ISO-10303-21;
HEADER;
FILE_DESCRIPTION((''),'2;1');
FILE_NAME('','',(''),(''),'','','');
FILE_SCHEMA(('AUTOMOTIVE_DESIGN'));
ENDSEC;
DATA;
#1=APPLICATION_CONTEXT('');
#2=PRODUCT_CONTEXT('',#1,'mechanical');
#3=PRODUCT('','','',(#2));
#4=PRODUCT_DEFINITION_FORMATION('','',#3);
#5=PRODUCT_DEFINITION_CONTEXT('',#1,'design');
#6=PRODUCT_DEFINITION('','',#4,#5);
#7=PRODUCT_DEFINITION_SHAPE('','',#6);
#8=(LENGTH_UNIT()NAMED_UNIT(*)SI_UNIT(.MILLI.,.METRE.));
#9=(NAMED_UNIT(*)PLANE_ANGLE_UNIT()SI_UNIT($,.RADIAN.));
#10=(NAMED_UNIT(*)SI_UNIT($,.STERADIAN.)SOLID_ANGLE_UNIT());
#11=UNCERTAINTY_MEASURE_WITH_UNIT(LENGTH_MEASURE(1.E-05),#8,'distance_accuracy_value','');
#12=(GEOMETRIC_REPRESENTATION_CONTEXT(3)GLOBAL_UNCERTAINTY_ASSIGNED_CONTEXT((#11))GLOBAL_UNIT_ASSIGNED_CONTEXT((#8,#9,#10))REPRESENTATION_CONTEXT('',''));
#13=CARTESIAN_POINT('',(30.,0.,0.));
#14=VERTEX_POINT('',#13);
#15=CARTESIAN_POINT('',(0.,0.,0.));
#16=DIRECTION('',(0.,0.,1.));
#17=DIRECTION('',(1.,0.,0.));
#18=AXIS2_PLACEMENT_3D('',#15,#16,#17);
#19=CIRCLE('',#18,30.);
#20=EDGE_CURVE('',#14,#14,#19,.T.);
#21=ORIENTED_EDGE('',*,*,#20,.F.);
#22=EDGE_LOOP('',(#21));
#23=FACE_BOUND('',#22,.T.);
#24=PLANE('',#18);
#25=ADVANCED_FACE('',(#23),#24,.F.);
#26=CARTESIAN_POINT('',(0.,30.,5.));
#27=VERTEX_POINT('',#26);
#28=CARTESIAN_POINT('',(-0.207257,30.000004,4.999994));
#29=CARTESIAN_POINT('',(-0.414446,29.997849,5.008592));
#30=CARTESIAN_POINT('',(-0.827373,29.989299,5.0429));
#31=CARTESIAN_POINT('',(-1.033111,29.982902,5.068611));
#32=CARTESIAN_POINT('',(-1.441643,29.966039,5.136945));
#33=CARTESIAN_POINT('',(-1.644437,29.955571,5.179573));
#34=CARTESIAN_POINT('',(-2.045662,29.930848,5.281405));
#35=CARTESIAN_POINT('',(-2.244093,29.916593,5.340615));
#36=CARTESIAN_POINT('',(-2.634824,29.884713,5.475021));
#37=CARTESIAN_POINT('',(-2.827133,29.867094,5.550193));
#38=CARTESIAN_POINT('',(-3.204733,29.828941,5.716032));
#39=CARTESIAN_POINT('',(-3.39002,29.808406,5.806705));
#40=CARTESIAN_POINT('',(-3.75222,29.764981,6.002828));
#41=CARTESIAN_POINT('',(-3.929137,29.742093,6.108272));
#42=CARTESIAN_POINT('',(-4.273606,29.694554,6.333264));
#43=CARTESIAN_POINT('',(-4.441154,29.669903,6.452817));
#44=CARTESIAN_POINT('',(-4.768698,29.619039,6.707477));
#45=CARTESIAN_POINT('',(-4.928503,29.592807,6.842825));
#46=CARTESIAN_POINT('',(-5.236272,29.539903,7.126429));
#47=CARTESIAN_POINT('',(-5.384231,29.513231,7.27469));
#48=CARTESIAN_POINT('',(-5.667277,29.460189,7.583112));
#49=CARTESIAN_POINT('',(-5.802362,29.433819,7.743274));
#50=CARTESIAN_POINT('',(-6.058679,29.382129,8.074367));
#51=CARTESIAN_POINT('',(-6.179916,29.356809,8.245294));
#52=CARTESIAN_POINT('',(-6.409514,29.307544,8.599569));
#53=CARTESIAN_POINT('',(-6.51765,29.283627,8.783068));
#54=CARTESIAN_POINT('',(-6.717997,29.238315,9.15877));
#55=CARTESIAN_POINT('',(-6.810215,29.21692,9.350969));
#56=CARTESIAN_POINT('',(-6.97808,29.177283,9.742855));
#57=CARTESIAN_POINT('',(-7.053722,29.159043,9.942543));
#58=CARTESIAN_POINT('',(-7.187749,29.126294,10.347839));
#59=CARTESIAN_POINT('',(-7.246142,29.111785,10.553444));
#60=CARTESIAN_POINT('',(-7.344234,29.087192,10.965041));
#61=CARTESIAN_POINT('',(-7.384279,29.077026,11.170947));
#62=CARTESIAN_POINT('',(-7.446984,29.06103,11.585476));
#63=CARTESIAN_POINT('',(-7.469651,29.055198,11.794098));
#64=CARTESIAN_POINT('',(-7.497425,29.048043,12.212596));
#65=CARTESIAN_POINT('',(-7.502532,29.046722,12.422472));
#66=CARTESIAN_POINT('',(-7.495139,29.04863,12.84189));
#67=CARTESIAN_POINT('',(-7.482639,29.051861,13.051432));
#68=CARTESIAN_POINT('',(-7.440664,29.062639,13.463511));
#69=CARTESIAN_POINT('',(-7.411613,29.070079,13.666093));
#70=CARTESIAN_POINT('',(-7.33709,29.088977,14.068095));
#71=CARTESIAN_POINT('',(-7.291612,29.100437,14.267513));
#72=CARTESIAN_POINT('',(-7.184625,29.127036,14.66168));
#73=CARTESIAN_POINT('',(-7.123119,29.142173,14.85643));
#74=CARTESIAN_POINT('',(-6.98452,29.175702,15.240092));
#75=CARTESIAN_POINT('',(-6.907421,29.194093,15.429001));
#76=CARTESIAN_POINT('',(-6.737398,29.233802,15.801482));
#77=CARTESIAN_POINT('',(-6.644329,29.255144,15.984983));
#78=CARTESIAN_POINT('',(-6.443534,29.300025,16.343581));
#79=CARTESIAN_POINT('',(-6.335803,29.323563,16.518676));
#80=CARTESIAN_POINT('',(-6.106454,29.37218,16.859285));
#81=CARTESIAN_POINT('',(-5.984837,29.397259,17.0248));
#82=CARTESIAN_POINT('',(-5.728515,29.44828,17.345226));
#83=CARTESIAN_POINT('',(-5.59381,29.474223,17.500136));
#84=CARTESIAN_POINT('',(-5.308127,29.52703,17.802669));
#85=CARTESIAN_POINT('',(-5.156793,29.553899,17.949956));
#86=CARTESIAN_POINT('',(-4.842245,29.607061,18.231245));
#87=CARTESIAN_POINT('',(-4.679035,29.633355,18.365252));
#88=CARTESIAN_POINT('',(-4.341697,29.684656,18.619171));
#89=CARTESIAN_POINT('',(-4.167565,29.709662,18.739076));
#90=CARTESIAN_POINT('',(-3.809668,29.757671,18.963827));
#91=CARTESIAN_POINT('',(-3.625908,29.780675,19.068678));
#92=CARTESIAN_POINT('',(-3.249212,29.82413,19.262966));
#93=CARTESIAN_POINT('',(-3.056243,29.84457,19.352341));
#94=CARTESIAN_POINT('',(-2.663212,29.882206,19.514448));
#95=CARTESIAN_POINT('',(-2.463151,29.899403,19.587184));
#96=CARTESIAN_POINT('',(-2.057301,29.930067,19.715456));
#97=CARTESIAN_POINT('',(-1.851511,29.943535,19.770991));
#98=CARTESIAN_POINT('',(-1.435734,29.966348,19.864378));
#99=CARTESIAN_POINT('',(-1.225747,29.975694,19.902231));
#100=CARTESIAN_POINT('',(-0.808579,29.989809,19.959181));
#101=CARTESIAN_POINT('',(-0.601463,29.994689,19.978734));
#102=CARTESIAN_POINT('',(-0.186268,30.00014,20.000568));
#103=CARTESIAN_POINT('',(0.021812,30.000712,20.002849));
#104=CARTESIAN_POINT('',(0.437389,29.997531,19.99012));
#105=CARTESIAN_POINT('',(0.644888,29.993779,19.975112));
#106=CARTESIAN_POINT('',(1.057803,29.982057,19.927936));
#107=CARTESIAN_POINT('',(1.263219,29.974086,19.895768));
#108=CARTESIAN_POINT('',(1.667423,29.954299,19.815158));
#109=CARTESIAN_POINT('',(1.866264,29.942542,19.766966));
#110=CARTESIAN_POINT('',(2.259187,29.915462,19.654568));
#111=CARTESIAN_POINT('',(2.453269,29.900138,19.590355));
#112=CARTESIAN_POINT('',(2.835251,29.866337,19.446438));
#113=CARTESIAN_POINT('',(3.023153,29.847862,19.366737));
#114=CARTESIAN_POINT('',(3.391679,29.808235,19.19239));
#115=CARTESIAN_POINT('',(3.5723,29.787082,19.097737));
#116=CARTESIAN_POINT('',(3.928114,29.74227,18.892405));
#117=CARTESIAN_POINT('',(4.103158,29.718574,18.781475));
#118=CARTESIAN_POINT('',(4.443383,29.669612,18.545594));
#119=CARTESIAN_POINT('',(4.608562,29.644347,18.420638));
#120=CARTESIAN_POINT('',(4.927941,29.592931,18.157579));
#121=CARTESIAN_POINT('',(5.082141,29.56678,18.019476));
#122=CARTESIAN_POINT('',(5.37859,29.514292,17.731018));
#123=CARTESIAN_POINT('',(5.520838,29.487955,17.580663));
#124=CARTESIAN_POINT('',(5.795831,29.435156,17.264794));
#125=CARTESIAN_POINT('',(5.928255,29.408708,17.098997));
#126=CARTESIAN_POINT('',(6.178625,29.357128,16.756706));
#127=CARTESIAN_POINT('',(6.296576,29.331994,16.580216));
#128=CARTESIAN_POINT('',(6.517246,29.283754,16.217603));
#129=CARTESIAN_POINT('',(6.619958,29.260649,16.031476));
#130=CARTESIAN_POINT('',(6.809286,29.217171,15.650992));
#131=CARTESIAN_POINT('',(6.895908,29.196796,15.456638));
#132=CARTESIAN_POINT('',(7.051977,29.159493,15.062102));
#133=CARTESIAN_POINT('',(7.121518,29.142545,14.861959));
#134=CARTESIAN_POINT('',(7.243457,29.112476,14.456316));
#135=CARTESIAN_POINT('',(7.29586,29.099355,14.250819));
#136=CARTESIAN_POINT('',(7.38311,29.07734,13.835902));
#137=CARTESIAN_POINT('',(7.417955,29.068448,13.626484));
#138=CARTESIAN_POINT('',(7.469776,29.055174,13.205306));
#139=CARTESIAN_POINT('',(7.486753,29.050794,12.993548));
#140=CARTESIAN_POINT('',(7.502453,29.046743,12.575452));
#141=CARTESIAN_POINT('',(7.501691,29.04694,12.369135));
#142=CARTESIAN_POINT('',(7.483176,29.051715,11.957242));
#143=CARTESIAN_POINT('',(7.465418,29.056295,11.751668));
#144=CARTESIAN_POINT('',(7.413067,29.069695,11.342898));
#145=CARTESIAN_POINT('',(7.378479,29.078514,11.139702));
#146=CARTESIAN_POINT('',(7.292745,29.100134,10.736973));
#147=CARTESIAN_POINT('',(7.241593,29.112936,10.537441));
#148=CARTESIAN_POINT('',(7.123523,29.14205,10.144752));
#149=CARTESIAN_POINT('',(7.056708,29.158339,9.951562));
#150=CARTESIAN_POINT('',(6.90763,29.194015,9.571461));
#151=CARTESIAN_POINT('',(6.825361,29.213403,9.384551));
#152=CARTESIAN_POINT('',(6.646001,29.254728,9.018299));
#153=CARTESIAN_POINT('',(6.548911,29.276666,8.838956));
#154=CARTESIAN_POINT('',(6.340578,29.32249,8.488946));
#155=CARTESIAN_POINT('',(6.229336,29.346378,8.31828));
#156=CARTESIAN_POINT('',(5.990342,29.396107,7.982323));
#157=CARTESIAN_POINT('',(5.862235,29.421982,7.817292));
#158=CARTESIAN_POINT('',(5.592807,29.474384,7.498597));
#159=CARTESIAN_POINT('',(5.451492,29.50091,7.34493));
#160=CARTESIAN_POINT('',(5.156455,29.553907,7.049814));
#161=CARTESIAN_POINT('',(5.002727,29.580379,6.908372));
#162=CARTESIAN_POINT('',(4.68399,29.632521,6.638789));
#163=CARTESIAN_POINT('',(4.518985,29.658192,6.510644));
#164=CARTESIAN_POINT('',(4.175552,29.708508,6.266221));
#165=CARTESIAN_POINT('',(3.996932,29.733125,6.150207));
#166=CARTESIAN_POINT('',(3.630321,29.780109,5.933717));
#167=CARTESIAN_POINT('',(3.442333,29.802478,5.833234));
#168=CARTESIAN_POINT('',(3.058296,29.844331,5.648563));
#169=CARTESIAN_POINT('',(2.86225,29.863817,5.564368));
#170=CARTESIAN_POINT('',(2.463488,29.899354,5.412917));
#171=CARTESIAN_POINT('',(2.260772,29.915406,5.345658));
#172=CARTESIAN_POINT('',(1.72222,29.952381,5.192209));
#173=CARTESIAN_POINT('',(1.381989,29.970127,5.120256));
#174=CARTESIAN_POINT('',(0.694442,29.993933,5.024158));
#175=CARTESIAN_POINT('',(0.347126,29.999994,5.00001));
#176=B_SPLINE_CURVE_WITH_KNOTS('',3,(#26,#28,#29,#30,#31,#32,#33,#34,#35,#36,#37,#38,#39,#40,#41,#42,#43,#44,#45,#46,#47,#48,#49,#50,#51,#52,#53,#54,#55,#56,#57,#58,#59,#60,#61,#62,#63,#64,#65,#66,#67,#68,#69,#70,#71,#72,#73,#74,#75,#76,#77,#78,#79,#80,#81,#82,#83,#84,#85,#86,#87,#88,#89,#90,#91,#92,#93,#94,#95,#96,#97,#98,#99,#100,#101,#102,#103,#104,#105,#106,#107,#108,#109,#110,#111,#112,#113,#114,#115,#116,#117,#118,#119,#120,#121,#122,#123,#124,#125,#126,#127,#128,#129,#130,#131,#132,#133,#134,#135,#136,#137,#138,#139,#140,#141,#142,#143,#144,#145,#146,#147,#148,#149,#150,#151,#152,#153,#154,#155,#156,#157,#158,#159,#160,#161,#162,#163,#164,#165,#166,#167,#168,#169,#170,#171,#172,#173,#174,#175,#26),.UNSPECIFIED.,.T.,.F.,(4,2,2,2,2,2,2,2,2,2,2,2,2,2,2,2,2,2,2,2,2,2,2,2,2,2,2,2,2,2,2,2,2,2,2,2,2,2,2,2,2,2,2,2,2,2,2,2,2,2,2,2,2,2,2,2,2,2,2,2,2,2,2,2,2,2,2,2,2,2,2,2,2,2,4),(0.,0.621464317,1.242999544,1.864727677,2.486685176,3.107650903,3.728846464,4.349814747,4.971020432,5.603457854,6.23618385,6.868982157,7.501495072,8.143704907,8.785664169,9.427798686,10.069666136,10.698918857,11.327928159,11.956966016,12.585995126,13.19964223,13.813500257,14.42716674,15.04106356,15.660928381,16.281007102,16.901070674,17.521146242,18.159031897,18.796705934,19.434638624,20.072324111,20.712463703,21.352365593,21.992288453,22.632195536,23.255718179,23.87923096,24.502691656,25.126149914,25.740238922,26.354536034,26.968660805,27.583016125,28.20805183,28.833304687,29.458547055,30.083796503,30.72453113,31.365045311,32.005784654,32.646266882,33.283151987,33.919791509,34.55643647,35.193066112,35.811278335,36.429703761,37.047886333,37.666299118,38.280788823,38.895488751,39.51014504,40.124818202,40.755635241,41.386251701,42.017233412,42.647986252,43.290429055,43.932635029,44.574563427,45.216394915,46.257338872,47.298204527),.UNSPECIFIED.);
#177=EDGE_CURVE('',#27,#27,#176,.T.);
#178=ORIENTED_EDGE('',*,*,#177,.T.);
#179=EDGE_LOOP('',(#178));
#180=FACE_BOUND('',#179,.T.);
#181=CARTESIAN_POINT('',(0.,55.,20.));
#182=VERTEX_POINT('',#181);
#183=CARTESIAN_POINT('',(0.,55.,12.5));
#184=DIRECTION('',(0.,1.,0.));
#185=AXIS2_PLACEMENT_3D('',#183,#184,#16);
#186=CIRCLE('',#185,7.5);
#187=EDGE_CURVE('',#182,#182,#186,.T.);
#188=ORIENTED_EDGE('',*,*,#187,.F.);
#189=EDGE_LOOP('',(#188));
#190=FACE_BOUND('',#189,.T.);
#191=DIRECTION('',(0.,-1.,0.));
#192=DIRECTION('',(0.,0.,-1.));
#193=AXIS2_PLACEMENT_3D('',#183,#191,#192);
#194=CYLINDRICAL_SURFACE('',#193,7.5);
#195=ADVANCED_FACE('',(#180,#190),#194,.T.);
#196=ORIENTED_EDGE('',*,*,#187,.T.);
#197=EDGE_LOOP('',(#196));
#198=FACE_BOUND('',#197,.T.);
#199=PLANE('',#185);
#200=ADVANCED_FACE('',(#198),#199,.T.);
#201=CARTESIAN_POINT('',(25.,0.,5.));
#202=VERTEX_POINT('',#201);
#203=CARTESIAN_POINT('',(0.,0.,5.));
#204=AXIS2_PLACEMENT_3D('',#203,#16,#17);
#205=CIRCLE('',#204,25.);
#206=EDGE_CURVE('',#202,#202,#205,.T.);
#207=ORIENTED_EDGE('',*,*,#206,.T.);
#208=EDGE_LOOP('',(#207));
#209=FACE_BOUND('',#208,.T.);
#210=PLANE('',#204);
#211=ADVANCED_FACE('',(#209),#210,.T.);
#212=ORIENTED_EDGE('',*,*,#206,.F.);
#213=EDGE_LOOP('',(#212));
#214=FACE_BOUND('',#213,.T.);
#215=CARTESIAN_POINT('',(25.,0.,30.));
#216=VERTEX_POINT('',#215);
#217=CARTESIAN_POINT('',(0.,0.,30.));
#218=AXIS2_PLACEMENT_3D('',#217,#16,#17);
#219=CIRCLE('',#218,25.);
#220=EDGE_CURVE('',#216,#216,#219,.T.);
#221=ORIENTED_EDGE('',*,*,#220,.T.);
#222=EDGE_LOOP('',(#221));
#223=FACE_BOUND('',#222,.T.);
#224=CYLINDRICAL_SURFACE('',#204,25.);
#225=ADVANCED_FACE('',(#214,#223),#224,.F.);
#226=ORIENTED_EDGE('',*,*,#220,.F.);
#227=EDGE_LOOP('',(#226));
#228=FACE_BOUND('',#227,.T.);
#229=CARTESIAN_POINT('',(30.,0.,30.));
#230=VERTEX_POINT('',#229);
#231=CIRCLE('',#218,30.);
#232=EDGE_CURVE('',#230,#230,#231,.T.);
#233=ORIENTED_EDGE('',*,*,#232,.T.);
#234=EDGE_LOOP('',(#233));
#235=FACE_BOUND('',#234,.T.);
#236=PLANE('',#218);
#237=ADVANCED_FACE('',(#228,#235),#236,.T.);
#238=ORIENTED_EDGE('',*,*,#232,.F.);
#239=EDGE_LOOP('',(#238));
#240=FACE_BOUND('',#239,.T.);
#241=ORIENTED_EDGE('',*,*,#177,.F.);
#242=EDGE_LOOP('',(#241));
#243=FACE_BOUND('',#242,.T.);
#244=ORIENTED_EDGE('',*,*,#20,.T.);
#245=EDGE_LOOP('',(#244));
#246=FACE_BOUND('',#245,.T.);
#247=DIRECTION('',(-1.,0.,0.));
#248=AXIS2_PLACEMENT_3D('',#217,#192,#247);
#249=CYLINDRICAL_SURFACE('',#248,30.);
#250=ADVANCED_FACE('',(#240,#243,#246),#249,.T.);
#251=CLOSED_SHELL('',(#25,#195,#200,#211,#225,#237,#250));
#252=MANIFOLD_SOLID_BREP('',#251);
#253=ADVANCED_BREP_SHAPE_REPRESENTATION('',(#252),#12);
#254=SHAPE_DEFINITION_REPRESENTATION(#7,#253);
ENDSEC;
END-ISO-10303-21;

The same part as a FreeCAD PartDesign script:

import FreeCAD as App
import Part
import Sketcher
Q = App.Units.Quantity

doc = App.newDocument("Part")
body = doc.addObject("PartDesign::Body", "Body")

sketch1 = doc.addObject("Sketcher::SketchObject", "Sketch")
body.addObject(sketch1)
sketch1.AttachmentSupport = (doc.XY_Plane, [""])
sketch1.MapMode = "FlatFace"
sketch1.addGeometry(Part.Circle(App.Vector(0, 0, 0), App.Vector(0, 0, 1), 30), False)
sketch1.addConstraint([
    Sketcher.Constraint("Coincident", 0, 3, -1, 1),
    Sketcher.Constraint("Diameter", 0, Q("60 mm")),
])
pad1 = doc.addObject("PartDesign::Pad", "Pad")
body.addObject(pad1)
pad1.Profile = sketch1
pad1.Length = 30

sketch2 = doc.addObject("Sketcher::SketchObject", "Sketch001")
body.addObject(sketch2)
sketch2.AttachmentSupport = (doc.XZ_Plane, [""])
sketch2.MapMode = "FlatFace"
sketch2.addGeometry(Part.Circle(App.Vector(0, 12.5, 0), App.Vector(0, 0, 1), 7.5), False)
sketch2.addConstraint([
    Sketcher.Constraint("PointOnObject", 0, 3, -2),
    Sketcher.Constraint("Diameter", 0, Q("15 mm")),
    Sketcher.Constraint("DistanceY", -1, 1, 0, 3, Q("12.5 mm")),
])
pad2 = doc.addObject("PartDesign::Pad", "Pad001")
body.addObject(pad2)
pad2.Profile = sketch2
pad2.Length = 55
pad2.Reversed = True

sketch3 = doc.addObject("Sketcher::SketchObject", "Sketch002")
body.addObject(sketch3)
sketch3.AttachmentSupport = (doc.XY_Plane, [""])
sketch3.MapMode = "FlatFace"
sketch3.AttachmentOffset = App.Placement(App.Vector(0, 0, 30), App.Rotation())
sketch3.addGeometry(Part.Circle(App.Vector(0, 0, 0), App.Vector(0, 0, 1), 25), False)
sketch3.addConstraint([
    Sketcher.Constraint("Coincident", 0, 3, -1, 1),
    Sketcher.Constraint("Diameter", 0, Q("50 mm")),
])
pocket1 = doc.addObject("PartDesign::Pocket", "Pocket")
body.addObject(pocket1)
pocket1.Profile = sketch3
pocket1.Length = 25

doc.recompute()
